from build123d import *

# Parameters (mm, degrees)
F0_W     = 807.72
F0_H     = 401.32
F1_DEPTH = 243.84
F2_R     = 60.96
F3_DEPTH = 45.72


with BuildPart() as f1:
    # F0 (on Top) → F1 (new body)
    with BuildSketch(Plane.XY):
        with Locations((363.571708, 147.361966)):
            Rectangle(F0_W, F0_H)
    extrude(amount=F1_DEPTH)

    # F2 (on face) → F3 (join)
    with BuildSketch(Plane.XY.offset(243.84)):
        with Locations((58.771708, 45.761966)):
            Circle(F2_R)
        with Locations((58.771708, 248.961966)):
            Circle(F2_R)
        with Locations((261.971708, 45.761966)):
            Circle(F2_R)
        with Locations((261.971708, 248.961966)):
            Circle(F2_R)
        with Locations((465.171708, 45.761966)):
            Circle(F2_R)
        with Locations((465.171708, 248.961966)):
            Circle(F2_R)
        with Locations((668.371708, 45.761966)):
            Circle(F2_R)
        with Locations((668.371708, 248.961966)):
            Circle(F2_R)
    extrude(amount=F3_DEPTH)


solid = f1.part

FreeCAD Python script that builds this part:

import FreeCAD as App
import Part
import Sketcher
from FreeCAD import Vector
Q = App.Units.Quantity

doc = App.newDocument("Part")
body = doc.addObject("PartDesign::Body", "Body")

# Sketch on XY plane
sketch1 = doc.addObject("Sketcher::SketchObject", "Sketch")
body.addObject(sketch1)
sketch1.AttachmentSupport = (doc.XY_Plane, [""])
sketch1.MapMode = "FlatFace"
sketch1.addGeometry(Part.LineSegment(Vector(-40.288292, 348.021966, 0), Vector(-40.288292, -53.298034, 0)), False)
sketch1.addGeometry(Part.LineSegment(Vector(-40.288292, -53.298034, 0), Vector(767.431708, -53.298034, 0)), False)
sketch1.addGeometry(Part.LineSegment(Vector(767.431708, -53.298034, 0), Vector(767.431708, 348.021966, 0)), False)
sketch1.addGeometry(Part.LineSegment(Vector(767.431708, 348.021966, 0), Vector(-40.288292, 348.021966, 0)), False)
sketch1.addConstraint(Sketcher.Constraint("Coincident", 0, 2, 1, 1))
sketch1.addConstraint(Sketcher.Constraint("Coincident", 1, 2, 2, 1))
sketch1.addConstraint(Sketcher.Constraint("Coincident", 2, 2, 3, 1))
sketch1.addConstraint(Sketcher.Constraint("Coincident", 3, 2, 0, 1))
sketch1.addConstraint(Sketcher.Constraint("Vertical", 0))
sketch1.addConstraint(Sketcher.Constraint("Horizontal", 1))
sketch1.addConstraint(Sketcher.Constraint("Vertical", 2))
sketch1.addConstraint(Sketcher.Constraint("Horizontal", 3))
sketch1.addConstraint(Sketcher.Constraint("DistanceX", 1, 1, 1, 2, Q("31.8 in")))
sketch1.addConstraint(Sketcher.Constraint("DistanceY", 0, 2, 0, 1, Q("15.8 in")))
sketch1.addConstraint(Sketcher.Constraint("DistanceX", 0, 2, -1, 1, Q("40.288292 mm")))
sketch1.addConstraint(Sketcher.Constraint("DistanceY", 0, 2, -1, 1, Q("53.298034 mm")))
pad1 = doc.addObject("PartDesign::Pad", "Pad")
body.addObject(pad1)
pad1.Profile = sketch1
pad1.Length = Q("9.6 in")

# Sketch on XY plane
sketch2 = doc.addObject("Sketcher::SketchObject", "Sketch001")
body.addObject(sketch2)
sketch2.AttachmentSupport = (doc.XY_Plane, [""])
sketch2.MapMode = "FlatFace"
sketch2.AttachmentOffset = App.Placement(Vector(0, 0, 9.6 * 25.4), App.Rotation())
sketch2.addGeometry(Part.Circle(Vector(58.771708, 45.761966, 0), Vector(0, 0, 1), 60.96), False)
sketch2.addGeometry(Part.Circle(Vector(58.771708, 248.961966, 0), Vector(0, 0, 1), 60.96), False)
sketch2.addGeometry(Part.Circle(Vector(261.971708, 45.761966, 0), Vector(0, 0, 1), 60.96), False)
sketch2.addGeometry(Part.Circle(Vector(261.971708, 248.961966, 0), Vector(0, 0, 1), 60.96), False)
sketch2.addGeometry(Part.Circle(Vector(465.171708, 45.761966, 0), Vector(0, 0, 1), 60.96), False)
sketch2.addGeometry(Part.Circle(Vector(465.171708, 248.961966, 0), Vector(0, 0, 1), 60.96), False)
sketch2.addGeometry(Part.Circle(Vector(668.371708, 45.761966, 0), Vector(0, 0, 1), 60.96), False)
sketch2.addGeometry(Part.Circle(Vector(668.371708, 248.961966, 0), Vector(0, 0, 1), 60.96), False)
sketch2.addConstraint(Sketcher.Constraint("Equal", 0, 1))
sketch2.addConstraint(Sketcher.Constraint("Equal", 1, 2))
sketch2.addConstraint(Sketcher.Constraint("Equal", 2, 3))
sketch2.addConstraint(Sketcher.Constraint("Equal", 3, 4))
sketch2.addConstraint(Sketcher.Constraint("Equal", 4, 5))
sketch2.addConstraint(Sketcher.Constraint("Equal", 5, 6))
sketch2.addConstraint(Sketcher.Constraint("Equal", 6, 7))
sketch2.addConstraint(Sketcher.Constraint("Horizontal", 0, 3, 2, 3))
sketch2.addConstraint(Sketcher.Constraint("Horizontal", 1, 3, 3, 3))
sketch2.addConstraint(Sketcher.Constraint("Horizontal", 2, 3, 4, 3))
sketch2.addConstraint(Sketcher.Constraint("Horizontal", 3, 3, 5, 3))
sketch2.addConstraint(Sketcher.Constraint("Horizontal", 4, 3, 6, 3))
sketch2.addConstraint(Sketcher.Constraint("Horizontal", 5, 3, 7, 3))
sketch2.addConstraint(Sketcher.Constraint("Vertical", 0, 3, 1, 3))
sketch2.addConstraint(Sketcher.Constraint("Vertical", 2, 3, 3, 3))
sketch2.addConstraint(Sketcher.Constraint("Vertical", 4, 3, 5, 3))
sketch2.addConstraint(Sketcher.Constraint("Vertical", 6, 3, 7, 3))
sketch2.addConstraint(Sketcher.Constraint("Diameter", 0, Q("4.8 in")))
sketch2.addConstraint(Sketcher.Constraint("DistanceY", 0, 3, 1, 3, Q("8 in")))
sketch2.addConstraint(Sketcher.Constraint("DistanceX", 0, 3, 2, 3, Q("8 in")))
sketch2.addConstraint(Sketcher.Constraint("DistanceX", 2, 3, 4, 3, Q("8 in")))
sketch2.addConstraint(Sketcher.Constraint("DistanceX", 4, 3, 6, 3, Q("8 in")))
sketch2.addConstraint(Sketcher.Constraint("DistanceX", -1, 1, 2, 3, Q("261.971708 mm")))
sketch2.addConstraint(Sketcher.Constraint("DistanceY", -1, 1, 0, 3, Q("45.761966 mm")))
pad2 = doc.addObject("PartDesign::Pad", "Pad001")
body.addObject(pad2)
pad2.Profile = sketch2
pad2.Length = Q("1.8 in")

doc.recompute()
